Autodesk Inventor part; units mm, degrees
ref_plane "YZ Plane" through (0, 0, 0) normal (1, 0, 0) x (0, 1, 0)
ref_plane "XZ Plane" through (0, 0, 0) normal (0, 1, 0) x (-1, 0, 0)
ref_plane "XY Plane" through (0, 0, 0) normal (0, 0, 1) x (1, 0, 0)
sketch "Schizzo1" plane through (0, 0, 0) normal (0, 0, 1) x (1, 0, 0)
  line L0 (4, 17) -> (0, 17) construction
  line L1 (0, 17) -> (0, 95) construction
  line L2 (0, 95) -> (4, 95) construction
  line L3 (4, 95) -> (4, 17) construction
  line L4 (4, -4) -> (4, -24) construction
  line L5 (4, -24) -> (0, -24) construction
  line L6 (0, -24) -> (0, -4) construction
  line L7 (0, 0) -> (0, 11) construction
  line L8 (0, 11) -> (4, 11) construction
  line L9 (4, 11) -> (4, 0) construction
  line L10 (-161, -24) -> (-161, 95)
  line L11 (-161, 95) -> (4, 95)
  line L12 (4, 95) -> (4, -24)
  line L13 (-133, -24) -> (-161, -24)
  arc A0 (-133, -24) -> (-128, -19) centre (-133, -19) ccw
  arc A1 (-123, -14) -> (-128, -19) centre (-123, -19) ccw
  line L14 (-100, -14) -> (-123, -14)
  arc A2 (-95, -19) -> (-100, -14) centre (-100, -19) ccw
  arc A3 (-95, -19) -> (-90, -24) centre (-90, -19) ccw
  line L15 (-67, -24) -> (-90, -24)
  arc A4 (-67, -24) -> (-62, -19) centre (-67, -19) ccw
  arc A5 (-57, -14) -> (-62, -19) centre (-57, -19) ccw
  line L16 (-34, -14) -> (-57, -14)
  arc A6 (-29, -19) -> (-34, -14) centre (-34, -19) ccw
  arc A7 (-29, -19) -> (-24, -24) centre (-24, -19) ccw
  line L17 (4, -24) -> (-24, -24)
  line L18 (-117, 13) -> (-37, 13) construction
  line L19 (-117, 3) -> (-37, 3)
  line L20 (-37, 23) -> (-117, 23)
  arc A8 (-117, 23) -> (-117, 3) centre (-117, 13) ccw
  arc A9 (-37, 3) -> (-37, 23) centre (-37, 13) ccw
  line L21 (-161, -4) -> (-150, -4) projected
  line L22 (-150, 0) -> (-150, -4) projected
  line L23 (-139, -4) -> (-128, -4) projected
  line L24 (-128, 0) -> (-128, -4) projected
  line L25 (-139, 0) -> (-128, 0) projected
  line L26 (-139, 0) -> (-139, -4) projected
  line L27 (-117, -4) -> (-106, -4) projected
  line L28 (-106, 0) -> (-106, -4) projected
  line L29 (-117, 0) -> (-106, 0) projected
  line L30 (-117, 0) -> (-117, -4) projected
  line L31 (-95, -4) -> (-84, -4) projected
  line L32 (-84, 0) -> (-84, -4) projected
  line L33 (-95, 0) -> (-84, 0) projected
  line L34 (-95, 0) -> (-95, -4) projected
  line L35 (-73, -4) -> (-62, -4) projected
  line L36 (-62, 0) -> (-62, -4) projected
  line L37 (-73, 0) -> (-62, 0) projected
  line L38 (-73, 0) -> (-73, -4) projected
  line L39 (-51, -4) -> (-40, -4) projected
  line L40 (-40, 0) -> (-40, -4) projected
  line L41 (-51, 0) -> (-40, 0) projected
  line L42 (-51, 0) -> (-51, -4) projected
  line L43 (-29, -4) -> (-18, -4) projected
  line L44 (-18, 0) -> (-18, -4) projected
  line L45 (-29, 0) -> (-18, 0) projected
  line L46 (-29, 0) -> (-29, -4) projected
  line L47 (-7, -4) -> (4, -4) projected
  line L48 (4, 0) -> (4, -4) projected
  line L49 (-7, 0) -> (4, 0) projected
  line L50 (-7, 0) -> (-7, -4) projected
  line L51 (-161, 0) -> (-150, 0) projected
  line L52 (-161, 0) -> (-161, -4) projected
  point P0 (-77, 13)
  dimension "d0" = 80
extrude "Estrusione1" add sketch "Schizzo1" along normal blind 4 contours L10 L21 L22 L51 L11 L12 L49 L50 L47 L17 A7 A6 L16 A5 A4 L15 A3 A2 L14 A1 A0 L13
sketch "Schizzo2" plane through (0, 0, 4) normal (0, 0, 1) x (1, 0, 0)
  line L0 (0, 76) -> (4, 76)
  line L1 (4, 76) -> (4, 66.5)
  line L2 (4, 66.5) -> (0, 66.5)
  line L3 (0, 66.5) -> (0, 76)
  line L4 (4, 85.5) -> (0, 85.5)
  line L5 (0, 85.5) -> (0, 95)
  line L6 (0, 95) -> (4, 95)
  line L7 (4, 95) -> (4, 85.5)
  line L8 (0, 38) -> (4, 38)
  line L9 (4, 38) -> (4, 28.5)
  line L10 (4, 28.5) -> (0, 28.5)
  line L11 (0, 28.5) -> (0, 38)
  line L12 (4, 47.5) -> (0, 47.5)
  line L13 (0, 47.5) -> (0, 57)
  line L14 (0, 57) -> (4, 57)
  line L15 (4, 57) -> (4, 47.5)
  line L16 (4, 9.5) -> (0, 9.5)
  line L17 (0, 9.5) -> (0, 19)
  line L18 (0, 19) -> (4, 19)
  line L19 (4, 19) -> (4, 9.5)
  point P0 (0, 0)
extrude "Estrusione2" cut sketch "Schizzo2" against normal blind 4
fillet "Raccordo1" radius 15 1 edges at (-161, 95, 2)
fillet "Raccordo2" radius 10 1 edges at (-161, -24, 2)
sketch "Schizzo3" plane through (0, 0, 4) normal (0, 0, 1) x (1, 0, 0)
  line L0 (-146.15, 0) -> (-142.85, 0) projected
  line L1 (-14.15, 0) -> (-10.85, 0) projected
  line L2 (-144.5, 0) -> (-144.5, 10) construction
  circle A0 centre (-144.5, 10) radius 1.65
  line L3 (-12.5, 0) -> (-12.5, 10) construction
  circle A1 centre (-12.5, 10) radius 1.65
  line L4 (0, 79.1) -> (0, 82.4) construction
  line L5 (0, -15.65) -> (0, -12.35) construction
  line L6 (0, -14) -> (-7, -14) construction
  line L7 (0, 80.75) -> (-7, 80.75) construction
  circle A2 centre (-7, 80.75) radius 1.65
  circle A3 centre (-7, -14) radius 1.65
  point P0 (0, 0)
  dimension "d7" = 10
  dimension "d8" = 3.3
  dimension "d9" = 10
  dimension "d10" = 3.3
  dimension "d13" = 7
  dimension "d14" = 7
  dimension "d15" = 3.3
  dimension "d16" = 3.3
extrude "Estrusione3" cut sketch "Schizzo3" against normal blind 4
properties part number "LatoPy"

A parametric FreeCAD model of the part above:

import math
import FreeCAD as App
import Part
import Sketcher
Q = App.Units.Quantity


def edges_at(feature, points):
    """Names of the edges that pass closest to the given points."""
    edges = feature.Shape.Edges
    near = lambda p: min(range(len(edges)), key=lambda i: edges[i].distToShape(Part.Vertex(*p))[0])
    return sorted({f"Edge{near(p) + 1}" for p in points})


def add_polygon(sketch, points):
    """Adds a closed chain of lines whose ends are joined by coincident constraints."""
    first, n = sketch.GeometryCount, len(points)
    for a, b in zip(points, points[1:] + points[:1]):
        sketch.addGeometry(Part.LineSegment(App.Vector(*a, 0), App.Vector(*b, 0)), False)
    for i in range(n):
        sketch.addConstraint(Sketcher.Constraint("Coincident", first + i, 2, first + (i + 1) % n, 1))

doc = App.newDocument("Part")
body = doc.addObject("PartDesign::Body", "Body")

sketch1 = body.newObject("Sketcher::SketchObject", "Sketch")
sketch1.AttachmentSupport = (doc.getObject("XY_Plane"), [""])
sketch1.MapMode = "FlatFace"
sketch1.addGeometry(Part.LineSegment(App.Vector(-161, -4, 0), App.Vector(-161, -24, 0)), False)
sketch1.addGeometry(Part.LineSegment(App.Vector(-161, -24, 0), App.Vector(-133, -24, 0)), False)
sketch1.addGeometry(Part.ArcOfCircle(Part.Circle(App.Vector(-133, -19, 0), App.Vector(0, 0, 1), 5), math.radians(-90), math.radians(0)), False)
sketch1.addGeometry(Part.ArcOfCircle(Part.Circle(App.Vector(-123, -19, 0), App.Vector(0, 0, 1), 5), math.radians(90), math.radians(180)), False)
sketch1.addGeometry(Part.LineSegment(App.Vector(-123, -14, 0), App.Vector(-100, -14, 0)), False)
sketch1.addGeometry(Part.ArcOfCircle(Part.Circle(App.Vector(-100, -19, 0), App.Vector(0, 0, 1), 5), math.radians(0), math.radians(90)), False)
sketch1.addGeometry(Part.ArcOfCircle(Part.Circle(App.Vector(-90, -19, 0), App.Vector(0, 0, 1), 5), math.radians(180), math.radians(270)), False)
sketch1.addGeometry(Part.LineSegment(App.Vector(-90, -24, 0), App.Vector(-67, -24, 0)), False)
sketch1.addGeometry(Part.ArcOfCircle(Part.Circle(App.Vector(-67, -19, 0), App.Vector(0, 0, 1), 5), math.radians(-90), math.radians(0)), False)
sketch1.addGeometry(Part.ArcOfCircle(Part.Circle(App.Vector(-57, -19, 0), App.Vector(0, 0, 1), 5), math.radians(90), math.radians(180)), False)
sketch1.addGeometry(Part.LineSegment(App.Vector(-57, -14, 0), App.Vector(-34, -14, 0)), False)
sketch1.addGeometry(Part.ArcOfCircle(Part.Circle(App.Vector(-34, -19, 0), App.Vector(0, 0, 1), 5), math.radians(0), math.radians(90)), False)
sketch1.addGeometry(Part.ArcOfCircle(Part.Circle(App.Vector(-24, -19, 0), App.Vector(0, 0, 1), 5), math.radians(180), math.radians(270)), False)
sketch1.addGeometry(Part.LineSegment(App.Vector(-24, -24, 0), App.Vector(4, -24, 0)), False)
sketch1.addGeometry(Part.LineSegment(App.Vector(4, -24, 0), App.Vector(4, -4, 0)), False)
sketch1.addGeometry(Part.LineSegment(App.Vector(4, -4, 0), App.Vector(-7, -4, 0)), False)
sketch1.addGeometry(Part.LineSegment(App.Vector(-7, -4, 0), App.Vector(-7, 0, 0)), False)
sketch1.addGeometry(Part.LineSegment(App.Vector(-7, 0, 0), App.Vector(4, 0, 0)), False)
sketch1.addGeometry(Part.LineSegment(App.Vector(4, 0, 0), App.Vector(4, 95, 0)), False)
sketch1.addGeometry(Part.LineSegment(App.Vector(4, 95, 0), App.Vector(-161, 95, 0)), False)
sketch1.addGeometry(Part.LineSegment(App.Vector(-161, 95, 0), App.Vector(-161, 0, 0)), False)
sketch1.addGeometry(Part.LineSegment(App.Vector(-161, 0, 0), App.Vector(-150, 0, 0)), False)
sketch1.addGeometry(Part.LineSegment(App.Vector(-150, 0, 0), App.Vector(-150, -4, 0)), False)
sketch1.addGeometry(Part.LineSegment(App.Vector(-150, -4, 0), App.Vector(-161, -4, 0)), False)
add_polygon(sketch1, [(-128, -4), (-139, -4), (-139, 0), (-128, 0)])
add_polygon(sketch1, [(-106, -4), (-117, -4), (-117, 0), (-106, 0)])
add_polygon(sketch1, [(-84, -4), (-95, -4), (-95, 0), (-84, 0)])
add_polygon(sketch1, [(-62, -4), (-73, -4), (-73, 0), (-62, 0)])
add_polygon(sketch1, [(-40, -4), (-51, -4), (-51, 0), (-40, 0)])
add_polygon(sketch1, [(-18, -4), (-29, -4), (-29, 0), (-18, 0)])
sketch1.addGeometry(Part.LineSegment(App.Vector(-37, 3, 0), App.Vector(-117, 3, 0)), False)
sketch1.addGeometry(Part.ArcOfCircle(Part.Circle(App.Vector(-117, 13, 0), App.Vector(0, 0, 1), 10), math.radians(90), math.radians(270)), False)
sketch1.addGeometry(Part.LineSegment(App.Vector(-117, 23, 0), App.Vector(-37, 23, 0)), False)
sketch1.addGeometry(Part.ArcOfCircle(Part.Circle(App.Vector(-37, 13, 0), App.Vector(0, 0, 1), 10), math.radians(-90), math.radians(90)), False)
sketch1.addConstraint([
    Sketcher.Constraint("Coincident", 0, 2, 1, 1),
    Sketcher.Constraint("Tangent", 1, 2, 2, 1),
    Sketcher.Constraint("Tangent", 2, 2, 3, 2),
    Sketcher.Constraint("Tangent", 3, 1, 4, 1),
    Sketcher.Constraint("Tangent", 4, 2, 5, 2),
    Sketcher.Constraint("Tangent", 5, 1, 6, 1),
    Sketcher.Constraint("Tangent", 6, 2, 7, 1),
    Sketcher.Constraint("Tangent", 7, 2, 8, 1),
    Sketcher.Constraint("Tangent", 8, 2, 9, 2),
    Sketcher.Constraint("Tangent", 9, 1, 10, 1),
    Sketcher.Constraint("Tangent", 10, 2, 11, 2),
    Sketcher.Constraint("Tangent", 11, 1, 12, 1),
    Sketcher.Constraint("Tangent", 12, 2, 13, 1),
    Sketcher.Constraint("Coincident", 13, 2, 14, 1),
    Sketcher.Constraint("Coincident", 14, 2, 15, 1),
    Sketcher.Constraint("Coincident", 15, 2, 16, 1),
    Sketcher.Constraint("Coincident", 16, 2, 17, 1),
    Sketcher.Constraint("Coincident", 17, 2, 18, 1),
    Sketcher.Constraint("Coincident", 18, 2, 19, 1),
    Sketcher.Constraint("Coincident", 19, 2, 20, 1),
    Sketcher.Constraint("Coincident", 20, 2, 21, 1),
    Sketcher.Constraint("Coincident", 21, 2, 22, 1),
    Sketcher.Constraint("Coincident", 22, 2, 23, 1),
    Sketcher.Constraint("Coincident", 23, 2, 0, 1),
    Sketcher.Constraint("Tangent", 48, 2, 49, 2),
    Sketcher.Constraint("Tangent", 49, 1, 50, 1),
    Sketcher.Constraint("Tangent", 50, 2, 51, 2),
    Sketcher.Constraint("Tangent", 51, 1, 48, 1),
    Sketcher.Constraint("Vertical", 0),
    Sketcher.Constraint("Horizontal", 1),
    Sketcher.Constraint("Horizontal", 4),
    Sketcher.Constraint("Horizontal", 7),
    Sketcher.Constraint("Horizontal", 10),
    Sketcher.Constraint("Horizontal", 13),
    Sketcher.Constraint("Vertical", 14),
    Sketcher.Constraint("Horizontal", 15),
    Sketcher.Constraint("Vertical", 16),
    Sketcher.Constraint("Horizontal", 17),
    Sketcher.Constraint("Vertical", 18),
    Sketcher.Constraint("Horizontal", 19),
    Sketcher.Constraint("Vertical", 20),
    Sketcher.Constraint("Horizontal", 21),
    Sketcher.Constraint("Vertical", 22),
    Sketcher.Constraint("Horizontal", 23),
    Sketcher.Constraint("Horizontal", 24),
    Sketcher.Constraint("Vertical", 25),
    Sketcher.Constraint("Horizontal", 26),
    Sketcher.Constraint("Vertical", 27),
    Sketcher.Constraint("Horizontal", 28),
    Sketcher.Constraint("Vertical", 29),
    Sketcher.Constraint("Horizontal", 30),
    Sketcher.Constraint("Vertical", 31),
    Sketcher.Constraint("Horizontal", 32),
    Sketcher.Constraint("Vertical", 33),
    Sketcher.Constraint("Horizontal", 34),
    Sketcher.Constraint("Vertical", 35),
    Sketcher.Constraint("Horizontal", 36),
    Sketcher.Constraint("Vertical", 37),
    Sketcher.Constraint("Horizontal", 38),
    Sketcher.Constraint("Vertical", 39),
    Sketcher.Constraint("Horizontal", 40),
    Sketcher.Constraint("Vertical", 41),
    Sketcher.Constraint("Horizontal", 42),
    Sketcher.Constraint("Vertical", 43),
    Sketcher.Constraint("Horizontal", 44),
    Sketcher.Constraint("Vertical", 45),
    Sketcher.Constraint("Horizontal", 46),
    Sketcher.Constraint("Vertical", 47),
    Sketcher.Constraint("Horizontal", 48),
    Sketcher.Constraint("Horizontal", 50),
    Sketcher.Constraint("Equal", 2, 3),
    Sketcher.Constraint("Equal", 3, 5),
    Sketcher.Constraint("Equal", 5, 6),
    Sketcher.Constraint("Equal", 6, 8),
    Sketcher.Constraint("Equal", 8, 9),
    Sketcher.Constraint("Equal", 9, 11),
    Sketcher.Constraint("Equal", 11, 12),
    Sketcher.Constraint("PointOnObject", 16, 2, -1),
    Sketcher.Constraint("PointOnObject", 20, 2, -1),
    Sketcher.Constraint("PointOnObject", 25, 2, -1),
    Sketcher.Constraint("PointOnObject", 29, 2, -1),
    Sketcher.Constraint("PointOnObject", 33, 2, -1),
    Sketcher.Constraint("PointOnObject", 37, 2, -1),
    Sketcher.Constraint("PointOnObject", 41, 2, -1),
    Sketcher.Constraint("PointOnObject", 45, 2, -1),
    Sketcher.Constraint("Horizontal", 2, 3, 3, 3),
    Sketcher.Constraint("Horizontal", 5, 3, 6, 3),
    Sketcher.Constraint("Horizontal", 8, 3, 9, 3),
    Sketcher.Constraint("Horizontal", 11, 3, 12, 3),
    Sketcher.Constraint("Horizontal", 15, 2, 22, 2),
    Sketcher.Constraint("Horizontal", 23, 2, 24, 2),
    Sketcher.Constraint("Horizontal", 27, 2, 28, 2),
    Sketcher.Constraint("Horizontal", 31, 2, 32, 2),
    Sketcher.Constraint("Horizontal", 35, 2, 36, 2),
    Sketcher.Constraint("Horizontal", 39, 2, 40, 2),
    Sketcher.Constraint("Horizontal", 43, 2, 44, 2),
    Sketcher.Constraint("Vertical", 14, 2, 17, 2),
    Sketcher.Constraint("Vertical", 0, 2, 19, 2),
    Sketcher.Constraint("Vertical", 2, 2, 26, 2),
    Sketcher.Constraint("Vertical", 49, 3, 28, 2),
    Sketcher.Constraint("Vertical", 5, 1, 32, 2),
    Sketcher.Constraint("Vertical", 8, 2, 38, 2),
    Sketcher.Constraint("Vertical", 11, 1, 44, 2),
    Sketcher.Constraint("Equal", 4, 7),
    Sketcher.Constraint("Equal", 7, 10),
    Sketcher.Constraint("Equal", 1, 13),
    Sketcher.Constraint("Equal", 17, 21),
    Sketcher.Constraint("Equal", 23, 24),
    Sketcher.Constraint("Equal", 26, 28),
    Sketcher.Constraint("Equal", 30, 32),
    Sketcher.Constraint("Equal", 34, 36),
    Sketcher.Constraint("Equal", 38, 40),
    Sketcher.Constraint("Equal", 42, 44),
    Sketcher.Constraint("DistanceX", 48, 2, 48, 1, Q("80 mm")),
    Sketcher.Constraint("Radius", 2, Q("5 mm")),
    Sketcher.Constraint("Radius", 49, Q("10 mm")),
    Sketcher.Constraint("DistanceX", 1, 1, 1, 2, Q("28 mm")),
    Sketcher.Constraint("DistanceX", 4, 1, 4, 2, Q("23 mm")),
    Sketcher.Constraint("DistanceX", 15, 2, 15, 1, Q("11 mm")),
    Sketcher.Constraint("DistanceY", 0, 2, 0, 1, Q("20 mm")),
    Sketcher.Constraint("DistanceY", 16, 1, 16, 2, Q("4 mm")),
    Sketcher.Constraint("DistanceY", 18, 1, 18, 2, Q("95 mm")),
    Sketcher.Constraint("DistanceX", 2, 3, -1, 1, Q("133 mm")),
    Sketcher.Constraint("DistanceX", 49, 3, -1, 1, Q("117 mm")),
    Sketcher.Constraint("DistanceY", -1, 1, 49, 3, Q("13 mm")),
    Sketcher.Constraint("DistanceX", 40, 2, -1, 1, Q("51 mm")),
])
pad1 = body.newObject("PartDesign::Pad", "Pad")
pad1.Profile = sketch1
pad1.Length = 4

sketch2 = body.newObject("Sketcher::SketchObject", "Sketch001")
sketch2.AttachmentSupport = (doc.getObject("XY_Plane"), [""])
sketch2.MapMode = "FlatFace"
sketch2.AttachmentOffset = App.Placement(App.Vector(0, 0, 4), App.Rotation())
add_polygon(sketch2, [(4, 76), (0, 76), (0, 66.5), (4, 66.5)])
add_polygon(sketch2, [(0, 85.5), (4, 85.5), (4, 95), (0, 95)])
add_polygon(sketch2, [(4, 38), (0, 38), (0, 28.5), (4, 28.5)])
add_polygon(sketch2, [(0, 47.5), (4, 47.5), (4, 57), (0, 57)])
add_polygon(sketch2, [(0, 9.5), (4, 9.5), (4, 19), (0, 19)])
sketch2.addConstraint([
    Sketcher.Constraint("Horizontal", 0),
    Sketcher.Constraint("Vertical", 1),
    Sketcher.Constraint("Horizontal", 2),
    Sketcher.Constraint("Vertical", 3),
    Sketcher.Constraint("Horizontal", 4),
    Sketcher.Constraint("Vertical", 5),
    Sketcher.Constraint("Horizontal", 6),
    Sketcher.Constraint("Vertical", 7),
    Sketcher.Constraint("Horizontal", 8),
    Sketcher.Constraint("Vertical", 9),
    Sketcher.Constraint("Horizontal", 10),
    Sketcher.Constraint("Vertical", 11),
    Sketcher.Constraint("Horizontal", 12),
    Sketcher.Constraint("Vertical", 13),
    Sketcher.Constraint("Horizontal", 14),
    Sketcher.Constraint("Vertical", 15),
    Sketcher.Constraint("Horizontal", 16),
    Sketcher.Constraint("Vertical", 17),
    Sketcher.Constraint("Horizontal", 18),
    Sketcher.Constraint("Vertical", 19),
    Sketcher.Constraint("PointOnObject", 0, 2, -2),
    Sketcher.Constraint("PointOnObject", 6, 2, -2),
    Sketcher.Constraint("PointOnObject", 8, 2, -2),
    Sketcher.Constraint("PointOnObject", 14, 2, -2),
    Sketcher.Constraint("PointOnObject", 18, 2, -2),
    Sketcher.Constraint("Vertical", 3, 2, 4, 2),
    Sketcher.Constraint("Vertical", 5, 2, 10, 2),
    Sketcher.Constraint("Vertical", 11, 2, 12, 2),
    Sketcher.Constraint("Vertical", 13, 2, 16, 2),
    Sketcher.Constraint("Equal", 3, 5),
    Sketcher.Constraint("Equal", 7, 9),
    Sketcher.Constraint("Equal", 11, 13),
    Sketcher.Constraint("Equal", 15, 17),
    Sketcher.Constraint("DistanceX", 0, 2, 0, 1, Q("4 mm")),
    Sketcher.Constraint("DistanceY", 1, 2, 1, 1, Q("9.5 mm")),
    Sketcher.Constraint("DistanceY", -1, 1, 0, 2, Q("76 mm")),
    Sketcher.Constraint("DistanceY", -1, 1, 5, 2, Q("95 mm")),
    Sketcher.Constraint("DistanceY", -1, 1, 8, 2, Q("38 mm")),
    Sketcher.Constraint("DistanceY", -1, 1, 13, 2, Q("57 mm")),
    Sketcher.Constraint("DistanceY", -1, 1, 17, 2, Q("19 mm")),
])
pocket1 = body.newObject("PartDesign::Pocket", "Pocket")
pocket1.Profile = sketch2
pocket1.Length = 4
doc.recompute()

fillet = body.newObject("PartDesign::Fillet", "Fillet")
fillet.Base = (pocket1, edges_at(pocket1, [(-161, 95, 2)]))
fillet.Radius = 15
doc.recompute()

fillet2 = body.newObject("PartDesign::Fillet", "Fillet001")
fillet2.Base = (fillet, edges_at(fillet, [(-161, -24, 2)]))
fillet2.Radius = 10

sketch3 = body.newObject("Sketcher::SketchObject", "Sketch002")
sketch3.AttachmentSupport = (doc.getObject("XY_Plane"), [""])
sketch3.MapMode = "FlatFace"
sketch3.AttachmentOffset = App.Placement(App.Vector(0, 0, 4), App.Rotation())
sketch3.addGeometry([
    Part.Circle(App.Vector(-144.5, 10, 0), App.Vector(0, 0, 1), 1.65),
    Part.Circle(App.Vector(-12.5, 10, 0), App.Vector(0, 0, 1), 1.65),
    Part.Circle(App.Vector(-7, 80.75, 0), App.Vector(0, 0, 1), 1.65),
    Part.Circle(App.Vector(-7, -14, 0), App.Vector(0, 0, 1), 1.65),
], False)
sketch3.addConstraint([
    Sketcher.Constraint("Equal", 0, 1),
    Sketcher.Constraint("Equal", 1, 2),
    Sketcher.Constraint("Equal", 2, 3),
    Sketcher.Constraint("Horizontal", 0, 3, 1, 3),
    Sketcher.Constraint("Vertical", 2, 3, 3, 3),
    Sketcher.Constraint("Diameter", 0, Q("3.3 mm")),
    Sketcher.Constraint("DistanceY", -1, 1, 0, 3, Q("10 mm")),
    Sketcher.Constraint("DistanceX", 2, 3, -1, 1, Q("7 mm")),
    Sketcher.Constraint("DistanceY", 3, 3, -1, 1, Q("14 mm")),
    Sketcher.Constraint("DistanceX", 0, 3, 1, 3, Q("132 mm")),
    Sketcher.Constraint("DistanceX", 0, 3, -1, 1, Q("144.5 mm")),
    Sketcher.Constraint("DistanceY", -1, 1, 2, 3, Q("80.75 mm")),
])
pocket2 = body.newObject("PartDesign::Pocket", "Pocket001")
pocket2.Profile = sketch3
pocket2.Length = 4

doc.recompute()
